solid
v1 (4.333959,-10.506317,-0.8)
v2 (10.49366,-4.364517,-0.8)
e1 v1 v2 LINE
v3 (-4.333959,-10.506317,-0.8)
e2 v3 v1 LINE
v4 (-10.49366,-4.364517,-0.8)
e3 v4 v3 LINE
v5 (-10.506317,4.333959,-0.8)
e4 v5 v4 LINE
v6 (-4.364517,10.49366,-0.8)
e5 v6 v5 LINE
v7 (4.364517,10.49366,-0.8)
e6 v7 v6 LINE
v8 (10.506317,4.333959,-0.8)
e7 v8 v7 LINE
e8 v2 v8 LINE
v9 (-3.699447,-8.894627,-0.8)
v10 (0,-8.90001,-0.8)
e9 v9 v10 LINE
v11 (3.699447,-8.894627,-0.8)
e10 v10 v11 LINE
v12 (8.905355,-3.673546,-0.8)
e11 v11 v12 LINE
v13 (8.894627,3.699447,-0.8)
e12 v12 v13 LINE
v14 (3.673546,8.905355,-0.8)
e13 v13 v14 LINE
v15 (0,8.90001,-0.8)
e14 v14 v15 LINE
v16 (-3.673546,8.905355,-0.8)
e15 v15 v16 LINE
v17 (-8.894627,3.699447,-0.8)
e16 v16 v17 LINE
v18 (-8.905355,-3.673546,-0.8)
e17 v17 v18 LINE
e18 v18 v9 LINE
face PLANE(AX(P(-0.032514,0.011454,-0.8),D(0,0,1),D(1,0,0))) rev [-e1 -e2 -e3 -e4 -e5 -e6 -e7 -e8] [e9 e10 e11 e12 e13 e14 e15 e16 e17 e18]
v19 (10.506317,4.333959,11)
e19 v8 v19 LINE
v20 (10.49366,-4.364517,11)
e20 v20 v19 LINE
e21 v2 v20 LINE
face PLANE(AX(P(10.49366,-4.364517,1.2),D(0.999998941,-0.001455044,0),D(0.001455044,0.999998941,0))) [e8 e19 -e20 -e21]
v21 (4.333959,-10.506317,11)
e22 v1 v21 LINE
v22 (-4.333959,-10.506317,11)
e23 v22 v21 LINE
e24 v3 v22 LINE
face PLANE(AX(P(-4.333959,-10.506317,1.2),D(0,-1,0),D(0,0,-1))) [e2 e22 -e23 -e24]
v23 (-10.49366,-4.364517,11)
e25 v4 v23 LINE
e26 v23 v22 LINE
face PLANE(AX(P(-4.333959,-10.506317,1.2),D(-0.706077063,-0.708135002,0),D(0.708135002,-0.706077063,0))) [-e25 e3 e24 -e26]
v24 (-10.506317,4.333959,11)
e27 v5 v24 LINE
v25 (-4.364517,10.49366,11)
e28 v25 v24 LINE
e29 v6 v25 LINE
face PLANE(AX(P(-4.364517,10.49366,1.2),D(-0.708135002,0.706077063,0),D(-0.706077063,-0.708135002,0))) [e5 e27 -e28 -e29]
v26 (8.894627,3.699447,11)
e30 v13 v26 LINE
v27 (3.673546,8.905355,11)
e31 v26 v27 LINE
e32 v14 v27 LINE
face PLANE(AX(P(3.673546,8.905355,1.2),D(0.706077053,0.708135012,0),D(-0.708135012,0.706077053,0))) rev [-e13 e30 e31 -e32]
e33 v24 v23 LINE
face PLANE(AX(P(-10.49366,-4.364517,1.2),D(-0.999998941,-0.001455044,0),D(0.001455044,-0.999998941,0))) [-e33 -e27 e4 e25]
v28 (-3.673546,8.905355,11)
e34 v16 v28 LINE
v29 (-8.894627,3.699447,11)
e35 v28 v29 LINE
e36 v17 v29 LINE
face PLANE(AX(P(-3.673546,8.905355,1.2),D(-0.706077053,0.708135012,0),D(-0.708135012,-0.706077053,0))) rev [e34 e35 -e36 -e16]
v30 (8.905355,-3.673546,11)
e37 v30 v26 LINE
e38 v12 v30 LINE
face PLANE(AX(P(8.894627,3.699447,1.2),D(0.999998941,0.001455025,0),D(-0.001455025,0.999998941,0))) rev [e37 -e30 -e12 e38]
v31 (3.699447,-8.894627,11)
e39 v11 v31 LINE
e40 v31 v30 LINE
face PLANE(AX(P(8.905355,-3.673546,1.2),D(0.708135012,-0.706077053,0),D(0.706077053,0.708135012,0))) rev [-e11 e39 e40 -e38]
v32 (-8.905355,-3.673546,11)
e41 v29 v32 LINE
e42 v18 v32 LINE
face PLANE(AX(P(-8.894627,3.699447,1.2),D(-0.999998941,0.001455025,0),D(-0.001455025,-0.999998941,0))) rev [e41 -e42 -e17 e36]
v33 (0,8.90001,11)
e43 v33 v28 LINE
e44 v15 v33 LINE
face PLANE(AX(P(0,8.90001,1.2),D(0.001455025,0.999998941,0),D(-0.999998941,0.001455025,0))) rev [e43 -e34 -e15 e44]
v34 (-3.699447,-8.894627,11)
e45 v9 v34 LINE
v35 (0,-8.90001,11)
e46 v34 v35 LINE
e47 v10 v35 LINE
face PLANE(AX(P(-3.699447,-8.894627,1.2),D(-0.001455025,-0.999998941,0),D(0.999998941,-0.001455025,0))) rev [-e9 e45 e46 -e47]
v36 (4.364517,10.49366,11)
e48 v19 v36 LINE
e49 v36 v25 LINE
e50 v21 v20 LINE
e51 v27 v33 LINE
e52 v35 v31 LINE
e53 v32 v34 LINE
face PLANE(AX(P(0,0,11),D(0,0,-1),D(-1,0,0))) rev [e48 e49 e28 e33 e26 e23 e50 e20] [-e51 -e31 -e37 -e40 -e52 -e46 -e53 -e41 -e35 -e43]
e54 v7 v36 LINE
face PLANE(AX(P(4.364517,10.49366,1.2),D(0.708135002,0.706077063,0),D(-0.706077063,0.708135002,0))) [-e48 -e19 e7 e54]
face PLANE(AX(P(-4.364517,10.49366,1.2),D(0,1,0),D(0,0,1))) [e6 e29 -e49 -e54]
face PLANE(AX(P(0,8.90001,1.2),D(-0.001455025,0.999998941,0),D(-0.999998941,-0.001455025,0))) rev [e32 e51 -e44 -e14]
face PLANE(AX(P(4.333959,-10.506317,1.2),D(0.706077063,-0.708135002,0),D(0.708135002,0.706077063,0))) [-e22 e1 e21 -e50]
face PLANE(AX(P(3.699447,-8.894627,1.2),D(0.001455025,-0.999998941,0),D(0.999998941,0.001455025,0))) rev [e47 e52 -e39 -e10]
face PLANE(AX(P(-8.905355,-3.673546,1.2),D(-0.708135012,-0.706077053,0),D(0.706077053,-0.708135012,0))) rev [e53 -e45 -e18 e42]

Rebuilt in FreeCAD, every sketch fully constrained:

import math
import FreeCAD as App
import Part
import Sketcher
Q = App.Units.Quantity


def add_polygon(sketch, points):
    """Adds a closed chain of lines whose ends are joined by coincident constraints."""
    first, n = sketch.GeometryCount, len(points)
    for a, b in zip(points, points[1:] + points[:1]):
        sketch.addGeometry(Part.LineSegment(App.Vector(*a, 0), App.Vector(*b, 0)), False)
    for i in range(n):
        sketch.addConstraint(Sketcher.Constraint("Coincident", first + i, 2, first + (i + 1) % n, 1))

doc = App.newDocument("Part")
body = doc.addObject("PartDesign::Body", "Body")

sketch1 = body.newObject("Sketcher::SketchObject", "Sketch")
sketch1.AttachmentSupport = (doc.getObject("XY_Plane"), [""])
sketch1.MapMode = "FlatFace"
sketch1.AttachmentOffset = App.Placement(App.Vector(0, 0, 11), App.Rotation())
add_polygon(sketch1, [(4.3, -10.5), (10.5, -4.4), (10.5, 4.3), (4.4, 10.5), (-4.4, 10.5), (-10.5, 4.3), (-10.5, -4.4), (-4.3, -10.5)])
add_polygon(sketch1, [(-3.7, 8.9), (0, 8.9), (3.7, 8.9), (8.9, 3.7), (8.9, -3.7), (3.7, -8.9), (0, -8.9), (-3.7, -8.9), (-8.9, -3.7), (-8.9, 3.7)])
sketch1.addConstraint([
    Sketcher.Constraint("Horizontal", 3),
    Sketcher.Constraint("Horizontal", 7),
    Sketcher.Constraint("Symmetric", 8, 2, 13, 2, -1, 1),
    Sketcher.Constraint("Symmetric", 1, 2, 4, 2, -2),
    Sketcher.Constraint("Symmetric", 0, 2, 5, 2, -2),
    Sketcher.Constraint("Symmetric", 12, 2, 14, 2, -2),
    Sketcher.Constraint("Symmetric", 11, 2, 15, 2, -2),
    Sketcher.Constraint("Symmetric", 10, 2, 16, 2, -2),
    Sketcher.Constraint("Symmetric", 9, 2, 17, 2, -2),
    Sketcher.Constraint("PointOnObject", 8, 2, -2),
    Sketcher.Constraint("Perpendicular", 0, 2),
    Sketcher.Constraint("Perpendicular", 4, 6),
    Sketcher.Constraint("Perpendicular", 1, 8),
    Sketcher.Constraint("Parallel", 6, 10),
    Sketcher.Constraint("Perpendicular", 9, 11),
    Sketcher.Constraint("Perpendicular", 10, 12),
    Sketcher.Constraint("Perpendicular", 11, 13),
    Sketcher.Constraint("Parallel", 2, 15),
    Sketcher.Constraint("Equal", 0, 1),
    Sketcher.Constraint("Equal", 1, 2),
    Sketcher.Constraint("Equal", 10, 11),
    Sketcher.Constraint("Equal", 11, 12),
    Sketcher.Constraint("Distance", 10, Q("7.373002 mm")),
    Sketcher.Constraint("DistanceX", 2, 2, 1, 2, Q("6.1418 mm")),
    Sketcher.Constraint("DistanceY", 1, 2, 2, 2, Q("6.159701 mm")),
    Sketcher.Constraint("Distance", 8, Q("3.67355 mm")),
    Sketcher.Constraint("Distance", 13, Q("3.699451 mm")),
    Sketcher.Constraint("DistanceX", 3, 2, 3, 1, Q("8.729033 mm")),
    Sketcher.Constraint("DistanceY", -1, 1, 1, 2, Q("4.333959 mm")),
])
pad1 = body.newObject("PartDesign::Pad", "Pad")
pad1.Profile = sketch1
pad1.Length = 9.8
pad1.Reversed = True

sketch2 = body.newObject("Sketcher::SketchObject", "Sketch001")
sketch2.AttachmentSupport = (doc.getObject("XY_Plane"), [""])
sketch2.MapMode = "FlatFace"
sketch2.AttachmentOffset = App.Placement(App.Vector(0, 0, 1.2), App.Rotation())
sketch2.addGeometry([
    Part.LineSegment(App.Vector(-4.4, 10.5, 0), App.Vector(4.4, 10.5, 0)),
    Part.LineSegment(App.Vector(4.4, 10.5, 0), App.Vector(10.5, 4.3, 0)),
    Part.ArcOfCircle(Part.Circle(App.Vector(10.2, 0, 0), App.Vector(0, 0, 1), 4.4), math.radians(-86), math.radians(86)),
    Part.LineSegment(App.Vector(10.5, -4.4, 0), App.Vector(4.3, -10.5, 0)),
    Part.LineSegment(App.Vector(4.3, -10.5, 0), App.Vector(-4.3, -10.5, 0)),
    Part.LineSegment(App.Vector(-4.3, -10.5, 0), App.Vector(-10.5, -4.4, 0)),
    Part.ArcOfCircle(Part.Circle(App.Vector(-10.2, 0, 0), App.Vector(0, 0, 1), 4.4), math.radians(94), math.radians(266)),
    Part.LineSegment(App.Vector(-10.5, 4.3, 0), App.Vector(-4.4, 10.5, 0)),
    Part.Circle(App.Vector(0, 0, 0), App.Vector(0, 0, 1), 3.9),
], False)
sketch2.addConstraint([
    Sketcher.Constraint("Coincident", 0, 2, 1, 1),
    Sketcher.Constraint("Coincident", 1, 2, 2, 2),
    Sketcher.Constraint("Coincident", 2, 1, 3, 1),
    Sketcher.Constraint("Coincident", 3, 2, 4, 1),
    Sketcher.Constraint("Coincident", 4, 2, 5, 1),
    Sketcher.Constraint("Coincident", 5, 2, 6, 2),
    Sketcher.Constraint("Coincident", 6, 1, 7, 1),
    Sketcher.Constraint("Coincident", 7, 2, 0, 1),
    Sketcher.Constraint("Horizontal", 0),
    Sketcher.Constraint("Horizontal", 4),
    Sketcher.Constraint("Coincident", 8, 3, -1, 1),
    Sketcher.Constraint("Equal", 2, 6),
    Sketcher.Constraint("Symmetric", 2, 3, 6, 3, -2),
    Sketcher.Constraint("Perpendicular", 1, 3),
    Sketcher.Constraint("Perpendicular", 5, 7),
    Sketcher.Constraint("Horizontal", 2, 1, 5, 2),
    Sketcher.Constraint("Horizontal", 1, 2, 6, 1),
    Sketcher.Constraint("Equal", 1, 3),
    Sketcher.Constraint("Equal", 3, 5),
    Sketcher.Constraint("Diameter", 8, Q("7.9 mm")),
    Sketcher.Constraint("Radius", 2, Q("4.359517 mm")),
    Sketcher.Constraint("DistanceX", 0, 2, 1, 2, Q("6.1418 mm")),
    Sketcher.Constraint("DistanceY", 1, 2, 0, 2, Q("6.159701 mm")),
    Sketcher.Constraint("DistanceX", 0, 1, 0, 2, Q("8.729033 mm")),
    Sketcher.Constraint("DistanceX", 4, 2, 4, 1, Q("8.667918 mm")),
    Sketcher.Constraint("DistanceX", -1, 1, 2, 3, Q("10.200851 mm")),
    Sketcher.Constraint("DistanceY", -1, 1, 0, 2, Q("10.49366 mm")),
])
pad2 = body.newObject("PartDesign::Pad", "Pad001")
pad2.Profile = sketch2
pad2.Length = 1.2
pad2.Reversed = True

sketch3 = body.newObject("Sketcher::SketchObject", "Sketch002")
sketch3.AttachmentSupport = (doc.getObject("XZ_Plane"), [""])
sketch3.MapMode = "FlatFace"
sketch3.AttachmentOffset = App.Placement(App.Vector(0, 0, 10.506317), App.Rotation())
add_polygon(sketch3, [(-18.6, 1.2), (-18.6, 0), (20.3, 0), (20.3, 1.2)])
sketch3.addConstraint([
    Sketcher.Constraint("Vertical", 0),
    Sketcher.Constraint("Horizontal", 1),
    Sketcher.Constraint("Vertical", 2),
    Sketcher.Constraint("Horizontal", 3),
    Sketcher.Constraint("PointOnObject", 0, 2, -1),
    Sketcher.Constraint("DistanceY", 0, 2, 0, 1, Q("1.2 mm")),
    Sketcher.Constraint("DistanceX", 1, 1, 1, 2, Q("38.864652 mm")),
    Sketcher.Constraint("DistanceX", 0, 2, -1, 1, Q("18.567599 mm")),
])
pocket1 = body.newObject("PartDesign::Pocket", "Pocket")
pocket1.Profile = sketch3
pocket1.Type = "ThroughAll"

sketch4 = body.newObject("Sketcher::SketchObject", "Sketch003")
sketch4.AttachmentSupport = (doc.getObject("XY_Plane"), [""])
sketch4.MapMode = "FlatFace"
sketch4.AttachmentOffset = App.Placement(App.Vector(0, 0, 1.2), App.Rotation())
add_polygon(sketch4, [(4.4, 10.5), (10.5, 4.3), (10.5, -4.4), (4.3, -10.5), (-4.3, -10.5), (-10.5, -4.4), (-10.5, 4.3), (-4.4, 10.5)])
add_polygon(sketch4, [(8.9, -3.7), (8.9, 3.7), (3.7, 8.9), (0, 8.9), (-3.7, 8.9), (-8.9, 3.7), (-8.9, -3.7), (-3.7, -8.9), (0, -8.9), (3.7, -8.9)])
sketch4.addConstraint([
    Sketcher.Constraint("Horizontal", 3),
    Sketcher.Constraint("Horizontal", 7),
    Sketcher.Constraint("Symmetric", 10, 2, 15, 2, -1, 1),
    Sketcher.Constraint("Symmetric", 1, 2, 4, 2, -2),
    Sketcher.Constraint("Symmetric", 0, 2, 5, 2, -2),
    Sketcher.Constraint("Symmetric", 9, 2, 11, 2, -2),
    Sketcher.Constraint("Symmetric", 8, 2, 12, 2, -2),
    Sketcher.Constraint("Symmetric", 14, 2, 16, 2, -2),
    Sketcher.Constraint("Symmetric", 13, 2, 17, 2, -2),
    Sketcher.Constraint("PointOnObject", 10, 2, -2),
    Sketcher.Constraint("Perpendicular", 0, 2),
    Sketcher.Constraint("Perpendicular", 4, 6),
    Sketcher.Constraint("Parallel", 5, 8),
    Sketcher.Constraint("Perpendicular", 6, 9),
    Sketcher.Constraint("Perpendicular", 8, 10),
    Sketcher.Constraint("Parallel", 2, 12),
    Sketcher.Constraint("Perpendicular", 12, 14),
    Sketcher.Constraint("Perpendicular", 13, 15),
    Sketcher.Constraint("Equal", 0, 1),
    Sketcher.Constraint("Equal", 1, 2),
    Sketcher.Constraint("Equal", 8, 9),
    Sketcher.Constraint("Equal", 13, 14),
    Sketcher.Constraint("Distance", 8, Q("7.373002 mm")),
    Sketcher.Constraint("DistanceX", 2, 2, 1, 2, Q("6.159701 mm")),
    Sketcher.Constraint("DistanceY", 2, 2, 1, 2, Q("6.1418 mm")),
    Sketcher.Constraint("Distance", 10, Q("3.67355 mm")),
    Sketcher.Constraint("Distance", 15, Q("3.699451 mm")),
    Sketcher.Constraint("DistanceX", 3, 2, 3, 1, Q("8.667918 mm")),
    Sketcher.Constraint("DistanceY", -1, 1, 0, 2, Q("4.333959 mm")),
])
pad3 = body.newObject("PartDesign::Pad", "Pad002")
pad3.Profile = sketch4
pad3.Length = 2
pad3.Reversed = True

doc.recompute()
